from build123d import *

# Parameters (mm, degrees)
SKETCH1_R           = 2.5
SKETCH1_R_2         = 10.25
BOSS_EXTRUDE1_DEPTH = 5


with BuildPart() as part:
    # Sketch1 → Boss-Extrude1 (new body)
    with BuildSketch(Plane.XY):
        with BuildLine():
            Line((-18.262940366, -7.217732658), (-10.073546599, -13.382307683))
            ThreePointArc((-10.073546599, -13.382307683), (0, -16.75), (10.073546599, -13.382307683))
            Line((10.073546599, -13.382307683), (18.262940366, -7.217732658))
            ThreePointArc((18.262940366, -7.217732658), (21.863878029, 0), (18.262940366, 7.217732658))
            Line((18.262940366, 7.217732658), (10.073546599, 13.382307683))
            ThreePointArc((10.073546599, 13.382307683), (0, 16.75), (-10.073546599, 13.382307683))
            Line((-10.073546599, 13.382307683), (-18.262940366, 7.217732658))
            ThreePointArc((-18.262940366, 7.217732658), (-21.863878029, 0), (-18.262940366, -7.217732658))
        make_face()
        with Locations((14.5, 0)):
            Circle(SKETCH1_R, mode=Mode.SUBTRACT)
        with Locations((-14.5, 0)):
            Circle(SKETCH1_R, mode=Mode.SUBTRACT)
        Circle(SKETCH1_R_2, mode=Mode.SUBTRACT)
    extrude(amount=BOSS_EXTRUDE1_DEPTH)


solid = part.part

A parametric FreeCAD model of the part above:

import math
import FreeCAD as App
import Part
import Sketcher
Q = App.Units.Quantity

doc = App.newDocument("Part")
params = doc.addObject("Spreadsheet::Sheet", "Params")
for row, (alias, value) in enumerate([
    ("sketch1_diameter", "5 mm"),
    ("sketch1_diameter2", "20.5 mm"),
    ("sketch1_radius", "16.75 mm"),
    ("pad1_length", "5 mm"),
], start=1):
    params.set(f"A{row}", alias)
    params.set(f"B{row}", "=" + value)
    params.setAlias(f"B{row}", alias)

body = doc.addObject("PartDesign::Body", "Body")

sketch1 = body.newObject("Sketcher::SketchObject", "Sketch")
sketch1.AttachmentSupport = (doc.getObject("XY_Plane"), [""])
sketch1.MapMode = "FlatFace"
sketch1.addGeometry([
    Part.LineSegment(App.Vector(-18.26294, -7.217733, 0), App.Vector(-10.073547, -13.382308, 0)),
    Part.ArcOfCircle(Part.Circle(App.Vector(0, 0, 0), App.Vector(0, 0, 1), 16.75), math.radians(-126.970645), math.radians(-53.029355)),
    Part.LineSegment(App.Vector(10.073547, -13.382308, 0), App.Vector(18.26294, -7.217733, 0)),
    Part.ArcOfCircle(Part.Circle(App.Vector(12.829784, 0, 0), App.Vector(0, 0, 1), 9.034094), math.radians(-53.029355), math.radians(53.029355)),
    Part.LineSegment(App.Vector(18.26294, 7.217733, 0), App.Vector(10.073547, 13.382308, 0)),
    Part.ArcOfCircle(Part.Circle(App.Vector(0, 0, 0), App.Vector(0, 0, 1), 16.75), math.radians(53.029355), math.radians(126.970645)),
    Part.LineSegment(App.Vector(-10.073547, 13.382308, 0), App.Vector(-18.26294, 7.217733, 0)),
    Part.ArcOfCircle(Part.Circle(App.Vector(-12.829784, 0, 0), App.Vector(0, 0, 1), 9.034094), math.radians(126.970645), math.radians(233.029355)),
    Part.Circle(App.Vector(-14.5, 0, 0), App.Vector(0, 0, 1), 2.5),
    Part.Circle(App.Vector(0, 0, 0), App.Vector(0, 0, 1), 10.25),
    Part.Circle(App.Vector(14.5, 0, 0), App.Vector(0, 0, 1), 2.5),
], False)
sketch1.addConstraint([
    Sketcher.Constraint("Tangent", 0, 2, 1, 1),
    Sketcher.Constraint("Tangent", 1, 2, 2, 1),
    Sketcher.Constraint("Tangent", 2, 2, 3, 1),
    Sketcher.Constraint("Tangent", 3, 2, 4, 1),
    Sketcher.Constraint("Tangent", 4, 2, 5, 1),
    Sketcher.Constraint("Tangent", 5, 2, 6, 1),
    Sketcher.Constraint("Tangent", 6, 2, 7, 1),
    Sketcher.Constraint("Tangent", 7, 2, 0, 1),
    Sketcher.Constraint("Coincident", 1, 3, -1, 1),
    Sketcher.Constraint("Coincident", 5, 3, -1, 1),
    Sketcher.Constraint("Coincident", 9, 3, -1, 1),
    Sketcher.Constraint("Equal", 1, 5),
    Sketcher.Constraint("Equal", 3, 7),
    Sketcher.Constraint("Equal", 8, 10),
    Sketcher.Constraint("Symmetric", 3, 3, 7, 3, -1, 1),
    Sketcher.Constraint("Symmetric", 8, 3, 10, 3, -1, 1),
    Sketcher.Constraint("PointOnObject", 3, 3, -1),
    Sketcher.Constraint("PointOnObject", 8, 3, -1),
    Sketcher.Constraint("Diameter", 8, Q("5 mm")),
    Sketcher.Constraint("Diameter", 9, Q("20.5 mm")),
    Sketcher.Constraint("Radius", 1, Q("16.75 mm")),
    Sketcher.Constraint("DistanceX", 8, 3, -1, 1, Q("14.5 mm")),
    Sketcher.Constraint("Radius", 3, Q("9.034094 mm")),
    Sketcher.Constraint("DistanceX", -1, 1, 2, 2, Q("18.26294 mm")),
])
sketch1.setExpression("Constraints[18]", "Params.sketch1_diameter")
sketch1.setExpression("Constraints[19]", "Params.sketch1_diameter2")
sketch1.setExpression("Constraints[20]", "Params.sketch1_radius")
pad1 = body.newObject("PartDesign::Pad", "Pad")
pad1.Profile = sketch1
pad1.setExpression("Length", "Params.pad1_length")

doc.recompute()
